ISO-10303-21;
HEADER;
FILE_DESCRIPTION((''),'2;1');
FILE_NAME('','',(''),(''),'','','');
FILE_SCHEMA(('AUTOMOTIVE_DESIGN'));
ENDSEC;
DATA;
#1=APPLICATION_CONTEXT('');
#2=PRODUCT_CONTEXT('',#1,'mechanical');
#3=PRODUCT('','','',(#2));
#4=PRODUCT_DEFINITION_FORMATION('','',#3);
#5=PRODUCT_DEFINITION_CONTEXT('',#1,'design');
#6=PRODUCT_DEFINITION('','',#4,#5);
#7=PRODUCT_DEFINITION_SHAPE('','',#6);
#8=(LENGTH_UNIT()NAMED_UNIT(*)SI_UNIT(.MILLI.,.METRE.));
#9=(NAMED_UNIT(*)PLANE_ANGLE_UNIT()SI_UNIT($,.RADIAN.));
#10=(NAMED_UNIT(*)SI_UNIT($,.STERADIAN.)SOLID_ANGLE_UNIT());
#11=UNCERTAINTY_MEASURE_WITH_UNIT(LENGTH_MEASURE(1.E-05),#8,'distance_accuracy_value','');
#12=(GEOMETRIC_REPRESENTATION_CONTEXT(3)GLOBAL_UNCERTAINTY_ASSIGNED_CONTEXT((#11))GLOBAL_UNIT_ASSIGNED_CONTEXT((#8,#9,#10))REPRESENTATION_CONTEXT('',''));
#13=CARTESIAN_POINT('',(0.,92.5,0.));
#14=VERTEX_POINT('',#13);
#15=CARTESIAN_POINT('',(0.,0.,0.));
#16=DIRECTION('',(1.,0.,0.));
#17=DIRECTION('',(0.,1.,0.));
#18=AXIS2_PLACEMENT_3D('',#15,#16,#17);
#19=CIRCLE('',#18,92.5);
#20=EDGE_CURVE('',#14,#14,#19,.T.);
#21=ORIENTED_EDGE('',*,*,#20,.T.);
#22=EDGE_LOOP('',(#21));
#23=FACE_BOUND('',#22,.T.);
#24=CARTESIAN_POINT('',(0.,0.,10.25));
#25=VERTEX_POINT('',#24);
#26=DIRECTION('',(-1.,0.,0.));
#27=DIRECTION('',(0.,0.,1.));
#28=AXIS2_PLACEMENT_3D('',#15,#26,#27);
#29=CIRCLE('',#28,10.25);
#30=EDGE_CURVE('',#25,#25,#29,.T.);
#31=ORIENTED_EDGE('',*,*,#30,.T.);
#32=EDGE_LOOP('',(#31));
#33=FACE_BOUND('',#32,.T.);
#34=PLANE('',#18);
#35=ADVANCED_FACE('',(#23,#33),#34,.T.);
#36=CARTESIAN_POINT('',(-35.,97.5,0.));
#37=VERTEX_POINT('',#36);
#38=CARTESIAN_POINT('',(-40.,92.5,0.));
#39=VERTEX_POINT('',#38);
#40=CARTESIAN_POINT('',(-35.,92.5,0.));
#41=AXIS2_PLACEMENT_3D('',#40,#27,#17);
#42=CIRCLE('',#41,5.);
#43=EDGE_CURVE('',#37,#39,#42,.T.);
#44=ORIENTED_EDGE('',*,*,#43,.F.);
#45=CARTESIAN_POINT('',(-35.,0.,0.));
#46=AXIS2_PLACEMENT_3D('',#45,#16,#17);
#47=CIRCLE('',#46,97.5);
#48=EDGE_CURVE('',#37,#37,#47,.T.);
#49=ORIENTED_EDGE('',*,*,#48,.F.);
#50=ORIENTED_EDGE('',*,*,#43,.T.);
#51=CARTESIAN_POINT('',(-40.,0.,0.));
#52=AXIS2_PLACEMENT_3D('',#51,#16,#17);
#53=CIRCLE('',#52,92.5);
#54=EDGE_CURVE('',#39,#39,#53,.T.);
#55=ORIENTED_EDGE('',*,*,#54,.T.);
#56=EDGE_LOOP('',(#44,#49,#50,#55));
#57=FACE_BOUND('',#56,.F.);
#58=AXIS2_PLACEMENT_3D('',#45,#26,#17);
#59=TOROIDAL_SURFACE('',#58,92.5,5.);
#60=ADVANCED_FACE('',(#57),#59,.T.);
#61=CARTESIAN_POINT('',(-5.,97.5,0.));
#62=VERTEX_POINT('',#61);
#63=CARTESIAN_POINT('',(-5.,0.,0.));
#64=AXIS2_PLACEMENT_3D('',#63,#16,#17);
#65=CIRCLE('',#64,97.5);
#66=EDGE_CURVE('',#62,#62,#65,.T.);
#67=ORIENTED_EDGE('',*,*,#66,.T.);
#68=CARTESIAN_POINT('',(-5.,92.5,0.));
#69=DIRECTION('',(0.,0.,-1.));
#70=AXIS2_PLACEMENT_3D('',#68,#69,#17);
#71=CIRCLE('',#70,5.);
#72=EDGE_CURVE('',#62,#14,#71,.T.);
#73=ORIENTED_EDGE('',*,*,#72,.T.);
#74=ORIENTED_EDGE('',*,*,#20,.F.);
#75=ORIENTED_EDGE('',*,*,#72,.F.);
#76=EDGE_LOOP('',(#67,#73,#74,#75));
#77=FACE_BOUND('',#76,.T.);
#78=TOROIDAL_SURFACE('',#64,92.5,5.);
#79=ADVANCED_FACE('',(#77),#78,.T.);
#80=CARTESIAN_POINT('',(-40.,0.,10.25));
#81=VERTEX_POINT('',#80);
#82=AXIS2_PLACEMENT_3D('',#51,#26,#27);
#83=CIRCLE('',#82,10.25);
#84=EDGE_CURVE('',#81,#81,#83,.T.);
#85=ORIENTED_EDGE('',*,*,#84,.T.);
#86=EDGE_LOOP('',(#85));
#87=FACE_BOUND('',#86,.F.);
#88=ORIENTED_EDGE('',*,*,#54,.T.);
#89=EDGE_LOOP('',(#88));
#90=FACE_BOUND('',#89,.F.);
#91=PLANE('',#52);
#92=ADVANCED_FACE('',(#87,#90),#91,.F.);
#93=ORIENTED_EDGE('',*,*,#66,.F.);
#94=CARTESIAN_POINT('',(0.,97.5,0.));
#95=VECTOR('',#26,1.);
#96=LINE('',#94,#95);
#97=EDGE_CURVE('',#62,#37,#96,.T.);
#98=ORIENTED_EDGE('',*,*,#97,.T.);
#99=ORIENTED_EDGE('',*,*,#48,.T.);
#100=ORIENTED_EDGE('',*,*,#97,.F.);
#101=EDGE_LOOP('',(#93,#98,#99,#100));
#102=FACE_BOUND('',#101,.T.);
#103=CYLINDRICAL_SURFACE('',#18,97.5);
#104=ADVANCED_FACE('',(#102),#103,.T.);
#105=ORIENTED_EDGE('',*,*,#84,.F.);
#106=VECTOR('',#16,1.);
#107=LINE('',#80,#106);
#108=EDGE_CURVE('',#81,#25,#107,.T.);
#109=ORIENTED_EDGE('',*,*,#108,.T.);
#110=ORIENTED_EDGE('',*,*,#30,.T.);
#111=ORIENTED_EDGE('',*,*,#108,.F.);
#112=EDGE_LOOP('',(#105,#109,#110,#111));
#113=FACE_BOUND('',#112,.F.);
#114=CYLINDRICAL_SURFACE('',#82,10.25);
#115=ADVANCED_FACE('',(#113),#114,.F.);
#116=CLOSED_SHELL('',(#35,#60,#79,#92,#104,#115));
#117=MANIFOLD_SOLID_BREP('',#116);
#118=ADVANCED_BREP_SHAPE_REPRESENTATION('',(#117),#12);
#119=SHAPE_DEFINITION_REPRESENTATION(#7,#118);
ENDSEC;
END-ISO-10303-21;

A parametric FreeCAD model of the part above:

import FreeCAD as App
import Part
import Sketcher
Q = App.Units.Quantity


def edges_at(feature, points):
    """Names of the edges that pass closest to the given points."""
    edges = feature.Shape.Edges
    near = lambda p: min(range(len(edges)), key=lambda i: edges[i].distToShape(Part.Vertex(*p))[0])
    return sorted({f"Edge{near(p) + 1}" for p in points})

doc = App.newDocument("Part")
body = doc.addObject("PartDesign::Body", "Body")

sketch1 = doc.addObject("Sketcher::SketchObject", "Sketch")
body.addObject(sketch1)
sketch1.AttachmentSupport = (doc.YZ_Plane, [""])
sketch1.MapMode = "FlatFace"
sketch1.addGeometry(Part.Circle(App.Vector(0, 0, 0), App.Vector(0, 0, 1), 98), False)
sketch1.addConstraint([
    Sketcher.Constraint("Coincident", 0, 3, -1, 1),
    Sketcher.Constraint("Diameter", 0, Q("195 mm")),
])
pad1 = doc.addObject("PartDesign::Pad", "Pad")
body.addObject(pad1)
pad1.Profile = sketch1
pad1.Length = 40
pad1.Reversed = True
doc.recompute()

fillet = doc.addObject("PartDesign::Fillet", "Fillet")
body.addObject(fillet)
fillet.Base = (pad1, edges_at(pad1, [(-40, -97.5, 0), (0, -97.5, 0)]))
fillet.Radius = 5

sketch2 = doc.addObject("Sketcher::SketchObject", "Sketch001")
body.addObject(sketch2)
sketch2.AttachmentSupport = (doc.YZ_Plane, [""])
sketch2.MapMode = "FlatFace"
sketch2.AttachmentOffset = App.Placement(App.Vector(0, 0, -40), App.Rotation())
sketch2.addGeometry(Part.Circle(App.Vector(0, 0, 0), App.Vector(0, 0, 1), 10), False)
sketch2.addConstraint([
    Sketcher.Constraint("Coincident", 0, 3, -1, 1),
    Sketcher.Constraint("Diameter", 0, Q("20.5 mm")),
])
pocket1 = doc.addObject("PartDesign::Pocket", "Pocket")
body.addObject(pocket1)
pocket1.Profile = sketch2
pocket1.Length = 40
pocket1.Reversed = True

doc.recompute()
